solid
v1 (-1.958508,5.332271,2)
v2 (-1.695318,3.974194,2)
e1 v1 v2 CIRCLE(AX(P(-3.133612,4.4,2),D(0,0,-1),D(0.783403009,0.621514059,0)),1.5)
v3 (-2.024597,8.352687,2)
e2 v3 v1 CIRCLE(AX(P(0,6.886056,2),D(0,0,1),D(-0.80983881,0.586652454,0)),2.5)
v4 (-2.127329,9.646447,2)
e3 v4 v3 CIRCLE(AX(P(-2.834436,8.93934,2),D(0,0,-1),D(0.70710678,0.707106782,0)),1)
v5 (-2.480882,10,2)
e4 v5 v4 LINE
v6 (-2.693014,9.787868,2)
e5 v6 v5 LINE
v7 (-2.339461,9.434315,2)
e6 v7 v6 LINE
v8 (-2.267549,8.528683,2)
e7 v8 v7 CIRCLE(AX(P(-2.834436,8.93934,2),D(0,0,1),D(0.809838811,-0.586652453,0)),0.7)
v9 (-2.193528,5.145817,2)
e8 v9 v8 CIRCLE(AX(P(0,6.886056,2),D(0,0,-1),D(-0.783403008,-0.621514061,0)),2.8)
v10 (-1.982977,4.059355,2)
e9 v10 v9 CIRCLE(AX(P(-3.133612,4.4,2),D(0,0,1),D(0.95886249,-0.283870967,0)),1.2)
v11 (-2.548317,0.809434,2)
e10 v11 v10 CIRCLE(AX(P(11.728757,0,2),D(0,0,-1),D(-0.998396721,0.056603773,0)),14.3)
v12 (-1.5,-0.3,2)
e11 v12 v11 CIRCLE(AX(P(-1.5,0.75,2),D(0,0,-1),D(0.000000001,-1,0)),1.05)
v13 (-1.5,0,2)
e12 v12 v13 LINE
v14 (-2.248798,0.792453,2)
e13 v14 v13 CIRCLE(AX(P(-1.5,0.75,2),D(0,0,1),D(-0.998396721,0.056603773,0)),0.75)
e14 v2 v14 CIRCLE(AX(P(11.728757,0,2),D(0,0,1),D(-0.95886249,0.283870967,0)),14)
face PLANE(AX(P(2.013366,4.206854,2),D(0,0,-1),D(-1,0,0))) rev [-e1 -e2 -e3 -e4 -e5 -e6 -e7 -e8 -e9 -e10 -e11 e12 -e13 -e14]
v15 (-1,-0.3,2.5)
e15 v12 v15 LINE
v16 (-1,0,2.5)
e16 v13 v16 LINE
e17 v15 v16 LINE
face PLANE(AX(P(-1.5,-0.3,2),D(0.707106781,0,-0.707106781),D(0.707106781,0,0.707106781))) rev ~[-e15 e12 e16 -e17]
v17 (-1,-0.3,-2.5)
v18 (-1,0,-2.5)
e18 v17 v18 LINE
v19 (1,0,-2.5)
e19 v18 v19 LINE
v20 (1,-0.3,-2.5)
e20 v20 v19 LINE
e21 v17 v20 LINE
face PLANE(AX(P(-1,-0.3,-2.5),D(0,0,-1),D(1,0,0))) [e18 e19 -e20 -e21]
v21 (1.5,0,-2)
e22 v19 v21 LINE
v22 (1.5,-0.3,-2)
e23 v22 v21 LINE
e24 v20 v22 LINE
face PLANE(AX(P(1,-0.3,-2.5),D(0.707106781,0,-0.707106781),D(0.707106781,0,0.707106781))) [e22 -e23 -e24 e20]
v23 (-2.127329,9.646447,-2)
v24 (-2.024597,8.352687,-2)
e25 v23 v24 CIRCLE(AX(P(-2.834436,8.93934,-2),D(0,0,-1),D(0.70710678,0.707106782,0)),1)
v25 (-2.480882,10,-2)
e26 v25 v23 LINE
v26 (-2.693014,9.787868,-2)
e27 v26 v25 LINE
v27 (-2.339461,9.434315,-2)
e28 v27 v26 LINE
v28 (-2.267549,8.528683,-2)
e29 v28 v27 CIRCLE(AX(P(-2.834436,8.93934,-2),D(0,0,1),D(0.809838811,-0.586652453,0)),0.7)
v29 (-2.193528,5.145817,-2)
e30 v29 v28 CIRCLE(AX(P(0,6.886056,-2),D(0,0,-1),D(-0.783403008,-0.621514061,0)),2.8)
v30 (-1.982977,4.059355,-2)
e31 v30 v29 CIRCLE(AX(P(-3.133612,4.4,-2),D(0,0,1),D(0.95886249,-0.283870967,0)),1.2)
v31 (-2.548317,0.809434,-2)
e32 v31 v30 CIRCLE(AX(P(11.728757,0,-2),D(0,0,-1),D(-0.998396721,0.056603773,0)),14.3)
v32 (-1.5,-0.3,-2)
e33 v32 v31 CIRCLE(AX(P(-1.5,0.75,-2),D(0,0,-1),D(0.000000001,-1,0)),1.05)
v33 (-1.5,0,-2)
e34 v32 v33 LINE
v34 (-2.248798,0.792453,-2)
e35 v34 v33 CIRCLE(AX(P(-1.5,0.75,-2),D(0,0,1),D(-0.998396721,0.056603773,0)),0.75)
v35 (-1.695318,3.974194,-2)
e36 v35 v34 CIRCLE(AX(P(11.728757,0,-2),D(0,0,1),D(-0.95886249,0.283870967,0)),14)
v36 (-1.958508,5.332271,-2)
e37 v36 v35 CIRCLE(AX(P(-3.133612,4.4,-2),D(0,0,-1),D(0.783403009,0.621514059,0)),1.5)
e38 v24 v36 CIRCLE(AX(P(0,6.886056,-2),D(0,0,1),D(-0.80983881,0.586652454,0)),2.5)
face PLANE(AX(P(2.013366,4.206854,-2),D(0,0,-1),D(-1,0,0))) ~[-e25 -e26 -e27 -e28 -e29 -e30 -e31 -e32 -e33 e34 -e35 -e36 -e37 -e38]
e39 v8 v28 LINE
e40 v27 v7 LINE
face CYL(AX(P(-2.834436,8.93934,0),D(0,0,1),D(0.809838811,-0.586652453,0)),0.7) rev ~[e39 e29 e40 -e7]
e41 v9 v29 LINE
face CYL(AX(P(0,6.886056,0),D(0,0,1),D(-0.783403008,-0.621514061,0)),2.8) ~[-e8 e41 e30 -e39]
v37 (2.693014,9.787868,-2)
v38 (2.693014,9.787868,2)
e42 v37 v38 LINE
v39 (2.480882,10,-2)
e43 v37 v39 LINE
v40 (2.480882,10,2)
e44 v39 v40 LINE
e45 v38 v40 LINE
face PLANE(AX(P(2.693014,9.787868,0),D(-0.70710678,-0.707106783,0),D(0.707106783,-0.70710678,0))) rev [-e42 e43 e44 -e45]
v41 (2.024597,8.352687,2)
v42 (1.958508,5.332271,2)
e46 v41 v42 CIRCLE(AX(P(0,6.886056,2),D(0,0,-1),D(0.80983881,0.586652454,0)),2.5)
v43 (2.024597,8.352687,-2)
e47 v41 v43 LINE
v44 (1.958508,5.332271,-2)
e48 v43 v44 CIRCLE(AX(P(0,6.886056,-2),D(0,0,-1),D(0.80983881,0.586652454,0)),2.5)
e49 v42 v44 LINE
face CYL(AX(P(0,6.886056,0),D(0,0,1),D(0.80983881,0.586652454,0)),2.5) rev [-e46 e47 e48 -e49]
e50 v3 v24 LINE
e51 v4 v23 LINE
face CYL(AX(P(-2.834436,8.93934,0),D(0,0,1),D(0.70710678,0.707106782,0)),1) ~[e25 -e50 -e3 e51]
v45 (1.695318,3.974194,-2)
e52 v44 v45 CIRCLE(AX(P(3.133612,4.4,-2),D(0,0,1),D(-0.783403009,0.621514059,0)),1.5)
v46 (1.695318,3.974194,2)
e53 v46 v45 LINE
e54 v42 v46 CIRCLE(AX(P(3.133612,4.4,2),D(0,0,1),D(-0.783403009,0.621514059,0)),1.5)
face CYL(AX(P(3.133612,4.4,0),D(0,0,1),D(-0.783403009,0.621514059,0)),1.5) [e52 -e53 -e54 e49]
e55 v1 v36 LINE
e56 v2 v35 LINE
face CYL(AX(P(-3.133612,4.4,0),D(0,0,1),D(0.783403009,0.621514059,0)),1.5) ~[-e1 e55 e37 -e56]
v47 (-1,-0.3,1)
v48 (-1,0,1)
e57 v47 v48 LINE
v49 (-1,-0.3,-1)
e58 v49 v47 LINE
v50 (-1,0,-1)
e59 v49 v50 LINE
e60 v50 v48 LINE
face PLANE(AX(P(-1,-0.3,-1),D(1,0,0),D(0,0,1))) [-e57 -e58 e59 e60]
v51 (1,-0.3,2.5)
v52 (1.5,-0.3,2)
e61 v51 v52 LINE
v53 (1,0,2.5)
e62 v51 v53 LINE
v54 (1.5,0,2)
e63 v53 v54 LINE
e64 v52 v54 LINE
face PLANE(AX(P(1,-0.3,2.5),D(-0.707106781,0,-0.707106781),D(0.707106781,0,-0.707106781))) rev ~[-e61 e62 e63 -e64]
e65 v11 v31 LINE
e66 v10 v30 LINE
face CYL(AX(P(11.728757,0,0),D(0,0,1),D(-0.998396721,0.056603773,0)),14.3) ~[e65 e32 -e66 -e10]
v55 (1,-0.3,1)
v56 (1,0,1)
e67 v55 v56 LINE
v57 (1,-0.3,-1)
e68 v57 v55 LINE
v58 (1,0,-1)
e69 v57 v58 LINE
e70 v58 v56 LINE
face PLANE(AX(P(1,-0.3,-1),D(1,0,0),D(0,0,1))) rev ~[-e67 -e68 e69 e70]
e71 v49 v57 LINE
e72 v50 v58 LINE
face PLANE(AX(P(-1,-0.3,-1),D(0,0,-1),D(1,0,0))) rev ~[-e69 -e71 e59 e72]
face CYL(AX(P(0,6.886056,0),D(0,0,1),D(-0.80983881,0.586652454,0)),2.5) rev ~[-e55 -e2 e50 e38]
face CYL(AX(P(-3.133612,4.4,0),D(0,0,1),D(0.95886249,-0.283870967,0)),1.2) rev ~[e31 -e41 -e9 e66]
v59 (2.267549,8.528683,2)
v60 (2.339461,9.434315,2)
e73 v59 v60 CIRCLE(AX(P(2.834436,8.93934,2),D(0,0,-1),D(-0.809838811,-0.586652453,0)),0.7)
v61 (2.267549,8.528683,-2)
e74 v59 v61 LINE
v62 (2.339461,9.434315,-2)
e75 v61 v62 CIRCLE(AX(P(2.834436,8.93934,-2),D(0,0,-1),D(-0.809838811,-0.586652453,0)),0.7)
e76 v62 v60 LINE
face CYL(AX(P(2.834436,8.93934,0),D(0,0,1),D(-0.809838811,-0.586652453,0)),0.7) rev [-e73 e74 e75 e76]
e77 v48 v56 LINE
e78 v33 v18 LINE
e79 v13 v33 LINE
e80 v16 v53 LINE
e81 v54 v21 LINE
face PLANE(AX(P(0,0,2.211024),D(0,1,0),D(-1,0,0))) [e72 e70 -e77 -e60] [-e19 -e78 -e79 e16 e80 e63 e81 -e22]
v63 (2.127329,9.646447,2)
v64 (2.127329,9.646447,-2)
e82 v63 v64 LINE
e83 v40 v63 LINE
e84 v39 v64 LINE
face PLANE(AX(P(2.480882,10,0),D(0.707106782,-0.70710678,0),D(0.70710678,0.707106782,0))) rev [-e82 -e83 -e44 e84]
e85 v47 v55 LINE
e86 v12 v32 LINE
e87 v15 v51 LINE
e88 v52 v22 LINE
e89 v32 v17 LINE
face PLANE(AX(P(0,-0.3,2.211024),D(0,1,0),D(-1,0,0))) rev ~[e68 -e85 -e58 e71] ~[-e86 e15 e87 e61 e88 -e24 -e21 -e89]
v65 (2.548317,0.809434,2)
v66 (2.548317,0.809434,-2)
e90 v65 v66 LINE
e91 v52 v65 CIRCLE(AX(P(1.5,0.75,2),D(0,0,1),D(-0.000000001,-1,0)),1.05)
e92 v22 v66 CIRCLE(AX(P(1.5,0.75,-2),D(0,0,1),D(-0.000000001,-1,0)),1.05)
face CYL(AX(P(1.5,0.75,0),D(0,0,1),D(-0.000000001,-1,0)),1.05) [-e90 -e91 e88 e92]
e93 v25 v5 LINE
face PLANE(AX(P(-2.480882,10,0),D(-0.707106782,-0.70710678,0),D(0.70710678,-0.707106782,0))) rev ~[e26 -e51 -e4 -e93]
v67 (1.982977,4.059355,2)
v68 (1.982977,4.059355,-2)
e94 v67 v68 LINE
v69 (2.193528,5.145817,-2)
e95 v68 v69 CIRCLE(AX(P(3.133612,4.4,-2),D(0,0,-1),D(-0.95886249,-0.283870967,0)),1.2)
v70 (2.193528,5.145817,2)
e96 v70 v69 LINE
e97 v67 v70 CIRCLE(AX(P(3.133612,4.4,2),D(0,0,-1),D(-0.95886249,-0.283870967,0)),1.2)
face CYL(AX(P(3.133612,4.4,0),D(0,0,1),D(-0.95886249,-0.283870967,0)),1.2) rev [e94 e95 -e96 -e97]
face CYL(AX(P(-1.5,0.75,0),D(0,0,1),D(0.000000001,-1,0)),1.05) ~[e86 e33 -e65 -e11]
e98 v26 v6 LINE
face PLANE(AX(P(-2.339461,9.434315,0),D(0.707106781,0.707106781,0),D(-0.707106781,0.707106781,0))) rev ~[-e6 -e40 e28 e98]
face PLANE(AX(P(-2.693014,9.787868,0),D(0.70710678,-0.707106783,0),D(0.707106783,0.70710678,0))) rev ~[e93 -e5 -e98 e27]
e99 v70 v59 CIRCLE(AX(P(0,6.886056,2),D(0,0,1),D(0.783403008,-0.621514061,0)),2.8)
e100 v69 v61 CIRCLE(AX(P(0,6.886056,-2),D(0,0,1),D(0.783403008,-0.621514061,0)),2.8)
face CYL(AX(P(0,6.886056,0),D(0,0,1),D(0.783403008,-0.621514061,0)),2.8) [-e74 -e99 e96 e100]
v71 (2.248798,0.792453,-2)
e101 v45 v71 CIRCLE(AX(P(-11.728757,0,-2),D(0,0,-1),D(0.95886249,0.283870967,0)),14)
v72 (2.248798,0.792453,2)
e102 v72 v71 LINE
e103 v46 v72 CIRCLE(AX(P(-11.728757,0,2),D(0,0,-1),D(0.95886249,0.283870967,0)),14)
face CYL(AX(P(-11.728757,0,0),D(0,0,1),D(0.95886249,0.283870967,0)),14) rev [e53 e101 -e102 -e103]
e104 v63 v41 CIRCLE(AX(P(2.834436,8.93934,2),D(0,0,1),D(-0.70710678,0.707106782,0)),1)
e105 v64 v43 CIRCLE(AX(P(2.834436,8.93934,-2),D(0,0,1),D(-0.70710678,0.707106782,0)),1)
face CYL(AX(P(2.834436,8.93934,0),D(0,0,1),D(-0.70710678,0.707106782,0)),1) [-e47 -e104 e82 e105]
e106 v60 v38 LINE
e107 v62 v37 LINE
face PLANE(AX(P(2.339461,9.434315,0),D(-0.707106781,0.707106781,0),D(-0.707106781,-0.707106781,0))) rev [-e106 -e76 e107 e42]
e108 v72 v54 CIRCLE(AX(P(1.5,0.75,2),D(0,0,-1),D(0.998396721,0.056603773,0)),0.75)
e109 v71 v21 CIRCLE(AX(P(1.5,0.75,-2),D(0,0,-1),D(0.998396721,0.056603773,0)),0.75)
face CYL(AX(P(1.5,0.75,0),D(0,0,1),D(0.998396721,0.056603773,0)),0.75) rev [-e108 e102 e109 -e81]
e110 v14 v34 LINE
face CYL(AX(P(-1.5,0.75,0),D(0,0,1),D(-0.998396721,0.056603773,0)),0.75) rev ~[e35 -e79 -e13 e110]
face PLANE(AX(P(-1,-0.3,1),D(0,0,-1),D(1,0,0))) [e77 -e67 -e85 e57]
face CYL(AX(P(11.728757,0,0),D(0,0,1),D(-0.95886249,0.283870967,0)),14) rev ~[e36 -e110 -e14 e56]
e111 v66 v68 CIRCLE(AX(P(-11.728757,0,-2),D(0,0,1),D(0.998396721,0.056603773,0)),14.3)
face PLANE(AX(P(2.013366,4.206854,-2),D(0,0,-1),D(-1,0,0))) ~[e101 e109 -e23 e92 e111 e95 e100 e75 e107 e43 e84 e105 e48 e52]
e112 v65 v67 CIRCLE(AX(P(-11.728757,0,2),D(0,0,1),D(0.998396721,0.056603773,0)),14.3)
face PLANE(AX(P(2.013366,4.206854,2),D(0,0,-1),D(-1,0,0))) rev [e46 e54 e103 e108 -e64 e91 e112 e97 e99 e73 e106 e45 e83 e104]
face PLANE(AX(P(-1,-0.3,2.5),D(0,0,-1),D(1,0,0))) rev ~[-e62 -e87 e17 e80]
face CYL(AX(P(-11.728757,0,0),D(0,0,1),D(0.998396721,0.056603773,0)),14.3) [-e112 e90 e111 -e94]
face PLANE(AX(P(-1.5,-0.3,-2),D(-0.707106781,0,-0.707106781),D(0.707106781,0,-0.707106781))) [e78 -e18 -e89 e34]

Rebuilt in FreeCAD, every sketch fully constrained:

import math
import FreeCAD as App
import Part
import Sketcher
Q = App.Units.Quantity


def add_polygon(sketch, points):
    """Adds a closed chain of lines whose ends are joined by coincident constraints."""
    first, n = sketch.GeometryCount, len(points)
    for a, b in zip(points, points[1:] + points[:1]):
        sketch.addGeometry(Part.LineSegment(App.Vector(*a, 0), App.Vector(*b, 0)), False)
    for i in range(n):
        sketch.addConstraint(Sketcher.Constraint("Coincident", first + i, 2, first + (i + 1) % n, 1))

doc = App.newDocument("Part")
body = doc.addObject("PartDesign::Body", "Body")

sketch1 = body.newObject("Sketcher::SketchObject", "Sketch")
sketch1.AttachmentSupport = (doc.getObject("XY_Plane"), [""])
sketch1.MapMode = "FlatFace"
sketch1.addGeometry(Part.LineSegment(App.Vector(-2.13, 9.65, 0), App.Vector(-2.48, 10, 0)), False)
sketch1.addGeometry(Part.LineSegment(App.Vector(-2.48, 10, 0), App.Vector(-2.69, 9.79, 0)), False)
sketch1.addGeometry(Part.LineSegment(App.Vector(-2.69, 9.79, 0), App.Vector(-2.34, 9.43, 0)), False)
sketch1.addGeometry(Part.ArcOfCircle(Part.Circle(App.Vector(-2.83, 8.94, 0), App.Vector(0, 0, 1), 0.7), math.radians(-36), math.radians(45)), False)
sketch1.addGeometry(Part.ArcOfCircle(Part.Circle(App.Vector(0, 6.89, 0), App.Vector(0, 0, 1), 2.8), math.radians(144), math.radians(218)), False)
sketch1.addGeometry(Part.ArcOfCircle(Part.Circle(App.Vector(-3.13, 4.4, 0), App.Vector(0, 0, 1), 1.2), math.radians(-16), math.radians(38)), False)
sketch1.addGeometry(Part.ArcOfCircle(Part.Circle(App.Vector(11.73, 0, 0), App.Vector(0, 0, 1), 14.3), math.radians(163.51), math.radians(176.76)), False)
sketch1.addGeometry(Part.ArcOfCircle(Part.Circle(App.Vector(-1.5, 0.75, 0), App.Vector(0, 0, 1), 1.05), math.radians(177), math.radians(270)), False)
sketch1.addGeometry(Part.LineSegment(App.Vector(-1.5, -0.3, 0), App.Vector(0, -0.3, 0)), False)
sketch1.addGeometry(Part.LineSegment(App.Vector(0, -0.3, 0), App.Vector(0, 0, 0)), False)
sketch1.addGeometry(Part.LineSegment(App.Vector(0, 0, 0), App.Vector(-1.5, 0, 0)), False)
sketch1.addGeometry(Part.ArcOfCircle(Part.Circle(App.Vector(-1.5, 0.75, 0), App.Vector(0, 0, 1), 0.75), math.radians(177), math.radians(270)), False)
sketch1.addGeometry(Part.ArcOfCircle(Part.Circle(App.Vector(11.73, 0, 0), App.Vector(0, 0, 1), 14), math.radians(163.51), math.radians(176.76)), False)
sketch1.addGeometry(Part.ArcOfCircle(Part.Circle(App.Vector(-3.13, 4.4, 0), App.Vector(0, 0, 1), 1.5), math.radians(-16), math.radians(38)), False)
sketch1.addGeometry(Part.ArcOfCircle(Part.Circle(App.Vector(0, 6.89, 0), App.Vector(0, 0, 1), 2.5), math.radians(144), math.radians(218)), False)
sketch1.addGeometry(Part.ArcOfCircle(Part.Circle(App.Vector(-2.83, 8.94, 0), App.Vector(0, 0, 1), 1), math.radians(-36), math.radians(45)), False)
sketch1.addConstraint(Sketcher.Constraint("Coincident", 0, 2, 1, 1))
sketch1.addConstraint(Sketcher.Constraint("Coincident", 1, 2, 2, 1))
sketch1.addConstraint(Sketcher.Constraint("Tangent", 2, 2, 3, 2))
sketch1.addConstraint(Sketcher.Constraint("Tangent", 3, 1, 4, 1))
sketch1.addConstraint(Sketcher.Constraint("Tangent", 4, 2, 5, 2))
sketch1.addConstraint(Sketcher.Constraint("Tangent", 5, 1, 6, 1))
sketch1.addConstraint(Sketcher.Constraint("Tangent", 6, 2, 7, 1))
sketch1.addConstraint(Sketcher.Constraint("Tangent", 7, 2, 8, 1))
sketch1.addConstraint(Sketcher.Constraint("Coincident", 8, 2, 9, 1))
sketch1.addConstraint(Sketcher.Constraint("Coincident", 9, 2, 10, 1))
sketch1.addConstraint(Sketcher.Constraint("Tangent", 10, 2, 11, 2))
sketch1.addConstraint(Sketcher.Constraint("Tangent", 11, 1, 12, 2))
sketch1.addConstraint(Sketcher.Constraint("Tangent", 12, 1, 13, 1))
sketch1.addConstraint(Sketcher.Constraint("Tangent", 13, 2, 14, 2))
sketch1.addConstraint(Sketcher.Constraint("Tangent", 14, 1, 15, 1))
sketch1.addConstraint(Sketcher.Constraint("Tangent", 15, 2, 0, 1))
sketch1.addConstraint(Sketcher.Constraint("Horizontal", 8))
sketch1.addConstraint(Sketcher.Constraint("Vertical", 9))
sketch1.addConstraint(Sketcher.Constraint("Horizontal", 10))
sketch1.addConstraint(Sketcher.Constraint("Coincident", 9, 2, -1, 1))
sketch1.addConstraint(Sketcher.Constraint("Coincident", 11, 3, 7, 3))
sketch1.addConstraint(Sketcher.Constraint("Coincident", 12, 3, 6, 3))
sketch1.addConstraint(Sketcher.Constraint("Coincident", 13, 3, 5, 3))
sketch1.addConstraint(Sketcher.Constraint("Coincident", 14, 3, 4, 3))
sketch1.addConstraint(Sketcher.Constraint("Coincident", 15, 3, 3, 3))
sketch1.addConstraint(Sketcher.Constraint("PointOnObject", 4, 3, -2))
sketch1.addConstraint(Sketcher.Constraint("PointOnObject", 6, 3, -1))
sketch1.addConstraint(Sketcher.Constraint("Perpendicular", 0, 1))
sketch1.addConstraint(Sketcher.Constraint("Perpendicular", 1, 2))
sketch1.addConstraint(Sketcher.Constraint("Radius", 12, Q("14 mm")))
sketch1.addConstraint(Sketcher.Constraint("Radius", 15, Q("1 mm")))
sketch1.addConstraint(Sketcher.Constraint("Radius", 3, Q("0.7 mm")))
sketch1.addConstraint(Sketcher.Constraint("Radius", 4, Q("2.8 mm")))
sketch1.addConstraint(Sketcher.Constraint("Radius", 5, Q("1.2 mm")))
sketch1.addConstraint(Sketcher.Constraint("Angle", 0, Q("135 deg")))
sketch1.addConstraint(Sketcher.Constraint("Radius", 7, Q("1.05 mm")))
sketch1.addConstraint(Sketcher.Constraint("DistanceX", 8, 1, 8, 2, Q("1.5 mm")))
sketch1.addConstraint(Sketcher.Constraint("DistanceY", -1, 1, 0, 2, Q("10 mm")))
sketch1.addConstraint(Sketcher.Constraint("Distance", 0, Q("0.5 mm")))
sketch1.addConstraint(Sketcher.Constraint("DistanceY", -1, 1, 5, 3, Q("4.4 mm")))
pad1 = body.newObject("PartDesign::Pad", "Pad")
pad1.Profile = sketch1
pad1.Length = 4
pad1.Midplane = True
doc.recompute()

mirrored = body.newObject("PartDesign::Mirrored", "Mirrored")
mirrored.Originals = [pad1]
mirrored.MirrorPlane = (doc.getObject("YZ_Plane"), [""])
body.Tip = mirrored

sketch2 = body.newObject("Sketcher::SketchObject", "Sketch001")
sketch2.AttachmentSupport = (doc.getObject("XZ_Plane"), [""])
sketch2.MapMode = "FlatFace"
sketch2.AttachmentOffset = App.Placement(App.Vector(0, 0, 0.3), App.Rotation())
add_polygon(sketch2, [(-1, 2.5), (-1.5, 2), (1.5, 2), (1, 2.5)])
add_polygon(sketch2, [(-1.5, -2), (-1, -2.5), (1, -2.5), (1.5, -2)])
sketch2.addConstraint(Sketcher.Constraint("Horizontal", 1))
sketch2.addConstraint(Sketcher.Constraint("Horizontal", 3))
sketch2.addConstraint(Sketcher.Constraint("Horizontal", 5))
sketch2.addConstraint(Sketcher.Constraint("Horizontal", 7))
sketch2.addConstraint(Sketcher.Constraint("Symmetric", 2, 2, 4, 2, -1, 1))
sketch2.addConstraint(Sketcher.Constraint("Symmetric", 0, 2, 6, 2, -1, 1))
sketch2.addConstraint(Sketcher.Constraint("Perpendicular", 0, 2))
sketch2.addConstraint(Sketcher.Constraint("Parallel", 2, 4))
sketch2.addConstraint(Sketcher.Constraint("Perpendicular", 4, 6))
sketch2.addConstraint(Sketcher.Constraint("Vertical", 3, 2, 4, 2))
sketch2.addConstraint(Sketcher.Constraint("Vertical", 1, 2, 6, 2))
sketch2.addConstraint(Sketcher.Constraint("DistanceX", 1, 1, 1, 2, Q("3 mm")))
sketch2.addConstraint(Sketcher.Constraint("DistanceX", 3, 2, 3, 1, Q("2 mm")))
sketch2.addConstraint(Sketcher.Constraint("DistanceY", -1, 1, 0, 2, Q("2 mm")))
pad2 = body.newObject("PartDesign::Pad", "Pad001")
pad2.Profile = sketch2
pad2.Length = 0.3
pad2.Reversed = True

sketch3 = body.newObject("Sketcher::SketchObject", "Sketch002")
sketch3.AttachmentSupport = (doc.getObject("XZ_Plane"), [""])
sketch3.MapMode = "FlatFace"
sketch3.AttachmentOffset = App.Placement(App.Vector(0, 0, 0.3), App.Rotation())
add_polygon(sketch3, [(-1, 1), (-1, -1), (1, -1), (1, 1)])
sketch3.addConstraint(Sketcher.Constraint("Vertical", 0))
sketch3.addConstraint(Sketcher.Constraint("Horizontal", 1))
sketch3.addConstraint(Sketcher.Constraint("Vertical", 2))
sketch3.addConstraint(Sketcher.Constraint("Horizontal", 3))
sketch3.addConstraint(Sketcher.Constraint("Symmetric", 0, 2, 2, 2, -1, 1))
sketch3.addConstraint(Sketcher.Constraint("Equal", 3, 0))
sketch3.addConstraint(Sketcher.Constraint("DistanceX", 1, 1, 1, 2, Q("2 mm")))
pocket1 = body.newObject("PartDesign::Pocket", "Pocket")
pocket1.Profile = sketch3
pocket1.Type = "UpToFirst"

doc.recompute()
